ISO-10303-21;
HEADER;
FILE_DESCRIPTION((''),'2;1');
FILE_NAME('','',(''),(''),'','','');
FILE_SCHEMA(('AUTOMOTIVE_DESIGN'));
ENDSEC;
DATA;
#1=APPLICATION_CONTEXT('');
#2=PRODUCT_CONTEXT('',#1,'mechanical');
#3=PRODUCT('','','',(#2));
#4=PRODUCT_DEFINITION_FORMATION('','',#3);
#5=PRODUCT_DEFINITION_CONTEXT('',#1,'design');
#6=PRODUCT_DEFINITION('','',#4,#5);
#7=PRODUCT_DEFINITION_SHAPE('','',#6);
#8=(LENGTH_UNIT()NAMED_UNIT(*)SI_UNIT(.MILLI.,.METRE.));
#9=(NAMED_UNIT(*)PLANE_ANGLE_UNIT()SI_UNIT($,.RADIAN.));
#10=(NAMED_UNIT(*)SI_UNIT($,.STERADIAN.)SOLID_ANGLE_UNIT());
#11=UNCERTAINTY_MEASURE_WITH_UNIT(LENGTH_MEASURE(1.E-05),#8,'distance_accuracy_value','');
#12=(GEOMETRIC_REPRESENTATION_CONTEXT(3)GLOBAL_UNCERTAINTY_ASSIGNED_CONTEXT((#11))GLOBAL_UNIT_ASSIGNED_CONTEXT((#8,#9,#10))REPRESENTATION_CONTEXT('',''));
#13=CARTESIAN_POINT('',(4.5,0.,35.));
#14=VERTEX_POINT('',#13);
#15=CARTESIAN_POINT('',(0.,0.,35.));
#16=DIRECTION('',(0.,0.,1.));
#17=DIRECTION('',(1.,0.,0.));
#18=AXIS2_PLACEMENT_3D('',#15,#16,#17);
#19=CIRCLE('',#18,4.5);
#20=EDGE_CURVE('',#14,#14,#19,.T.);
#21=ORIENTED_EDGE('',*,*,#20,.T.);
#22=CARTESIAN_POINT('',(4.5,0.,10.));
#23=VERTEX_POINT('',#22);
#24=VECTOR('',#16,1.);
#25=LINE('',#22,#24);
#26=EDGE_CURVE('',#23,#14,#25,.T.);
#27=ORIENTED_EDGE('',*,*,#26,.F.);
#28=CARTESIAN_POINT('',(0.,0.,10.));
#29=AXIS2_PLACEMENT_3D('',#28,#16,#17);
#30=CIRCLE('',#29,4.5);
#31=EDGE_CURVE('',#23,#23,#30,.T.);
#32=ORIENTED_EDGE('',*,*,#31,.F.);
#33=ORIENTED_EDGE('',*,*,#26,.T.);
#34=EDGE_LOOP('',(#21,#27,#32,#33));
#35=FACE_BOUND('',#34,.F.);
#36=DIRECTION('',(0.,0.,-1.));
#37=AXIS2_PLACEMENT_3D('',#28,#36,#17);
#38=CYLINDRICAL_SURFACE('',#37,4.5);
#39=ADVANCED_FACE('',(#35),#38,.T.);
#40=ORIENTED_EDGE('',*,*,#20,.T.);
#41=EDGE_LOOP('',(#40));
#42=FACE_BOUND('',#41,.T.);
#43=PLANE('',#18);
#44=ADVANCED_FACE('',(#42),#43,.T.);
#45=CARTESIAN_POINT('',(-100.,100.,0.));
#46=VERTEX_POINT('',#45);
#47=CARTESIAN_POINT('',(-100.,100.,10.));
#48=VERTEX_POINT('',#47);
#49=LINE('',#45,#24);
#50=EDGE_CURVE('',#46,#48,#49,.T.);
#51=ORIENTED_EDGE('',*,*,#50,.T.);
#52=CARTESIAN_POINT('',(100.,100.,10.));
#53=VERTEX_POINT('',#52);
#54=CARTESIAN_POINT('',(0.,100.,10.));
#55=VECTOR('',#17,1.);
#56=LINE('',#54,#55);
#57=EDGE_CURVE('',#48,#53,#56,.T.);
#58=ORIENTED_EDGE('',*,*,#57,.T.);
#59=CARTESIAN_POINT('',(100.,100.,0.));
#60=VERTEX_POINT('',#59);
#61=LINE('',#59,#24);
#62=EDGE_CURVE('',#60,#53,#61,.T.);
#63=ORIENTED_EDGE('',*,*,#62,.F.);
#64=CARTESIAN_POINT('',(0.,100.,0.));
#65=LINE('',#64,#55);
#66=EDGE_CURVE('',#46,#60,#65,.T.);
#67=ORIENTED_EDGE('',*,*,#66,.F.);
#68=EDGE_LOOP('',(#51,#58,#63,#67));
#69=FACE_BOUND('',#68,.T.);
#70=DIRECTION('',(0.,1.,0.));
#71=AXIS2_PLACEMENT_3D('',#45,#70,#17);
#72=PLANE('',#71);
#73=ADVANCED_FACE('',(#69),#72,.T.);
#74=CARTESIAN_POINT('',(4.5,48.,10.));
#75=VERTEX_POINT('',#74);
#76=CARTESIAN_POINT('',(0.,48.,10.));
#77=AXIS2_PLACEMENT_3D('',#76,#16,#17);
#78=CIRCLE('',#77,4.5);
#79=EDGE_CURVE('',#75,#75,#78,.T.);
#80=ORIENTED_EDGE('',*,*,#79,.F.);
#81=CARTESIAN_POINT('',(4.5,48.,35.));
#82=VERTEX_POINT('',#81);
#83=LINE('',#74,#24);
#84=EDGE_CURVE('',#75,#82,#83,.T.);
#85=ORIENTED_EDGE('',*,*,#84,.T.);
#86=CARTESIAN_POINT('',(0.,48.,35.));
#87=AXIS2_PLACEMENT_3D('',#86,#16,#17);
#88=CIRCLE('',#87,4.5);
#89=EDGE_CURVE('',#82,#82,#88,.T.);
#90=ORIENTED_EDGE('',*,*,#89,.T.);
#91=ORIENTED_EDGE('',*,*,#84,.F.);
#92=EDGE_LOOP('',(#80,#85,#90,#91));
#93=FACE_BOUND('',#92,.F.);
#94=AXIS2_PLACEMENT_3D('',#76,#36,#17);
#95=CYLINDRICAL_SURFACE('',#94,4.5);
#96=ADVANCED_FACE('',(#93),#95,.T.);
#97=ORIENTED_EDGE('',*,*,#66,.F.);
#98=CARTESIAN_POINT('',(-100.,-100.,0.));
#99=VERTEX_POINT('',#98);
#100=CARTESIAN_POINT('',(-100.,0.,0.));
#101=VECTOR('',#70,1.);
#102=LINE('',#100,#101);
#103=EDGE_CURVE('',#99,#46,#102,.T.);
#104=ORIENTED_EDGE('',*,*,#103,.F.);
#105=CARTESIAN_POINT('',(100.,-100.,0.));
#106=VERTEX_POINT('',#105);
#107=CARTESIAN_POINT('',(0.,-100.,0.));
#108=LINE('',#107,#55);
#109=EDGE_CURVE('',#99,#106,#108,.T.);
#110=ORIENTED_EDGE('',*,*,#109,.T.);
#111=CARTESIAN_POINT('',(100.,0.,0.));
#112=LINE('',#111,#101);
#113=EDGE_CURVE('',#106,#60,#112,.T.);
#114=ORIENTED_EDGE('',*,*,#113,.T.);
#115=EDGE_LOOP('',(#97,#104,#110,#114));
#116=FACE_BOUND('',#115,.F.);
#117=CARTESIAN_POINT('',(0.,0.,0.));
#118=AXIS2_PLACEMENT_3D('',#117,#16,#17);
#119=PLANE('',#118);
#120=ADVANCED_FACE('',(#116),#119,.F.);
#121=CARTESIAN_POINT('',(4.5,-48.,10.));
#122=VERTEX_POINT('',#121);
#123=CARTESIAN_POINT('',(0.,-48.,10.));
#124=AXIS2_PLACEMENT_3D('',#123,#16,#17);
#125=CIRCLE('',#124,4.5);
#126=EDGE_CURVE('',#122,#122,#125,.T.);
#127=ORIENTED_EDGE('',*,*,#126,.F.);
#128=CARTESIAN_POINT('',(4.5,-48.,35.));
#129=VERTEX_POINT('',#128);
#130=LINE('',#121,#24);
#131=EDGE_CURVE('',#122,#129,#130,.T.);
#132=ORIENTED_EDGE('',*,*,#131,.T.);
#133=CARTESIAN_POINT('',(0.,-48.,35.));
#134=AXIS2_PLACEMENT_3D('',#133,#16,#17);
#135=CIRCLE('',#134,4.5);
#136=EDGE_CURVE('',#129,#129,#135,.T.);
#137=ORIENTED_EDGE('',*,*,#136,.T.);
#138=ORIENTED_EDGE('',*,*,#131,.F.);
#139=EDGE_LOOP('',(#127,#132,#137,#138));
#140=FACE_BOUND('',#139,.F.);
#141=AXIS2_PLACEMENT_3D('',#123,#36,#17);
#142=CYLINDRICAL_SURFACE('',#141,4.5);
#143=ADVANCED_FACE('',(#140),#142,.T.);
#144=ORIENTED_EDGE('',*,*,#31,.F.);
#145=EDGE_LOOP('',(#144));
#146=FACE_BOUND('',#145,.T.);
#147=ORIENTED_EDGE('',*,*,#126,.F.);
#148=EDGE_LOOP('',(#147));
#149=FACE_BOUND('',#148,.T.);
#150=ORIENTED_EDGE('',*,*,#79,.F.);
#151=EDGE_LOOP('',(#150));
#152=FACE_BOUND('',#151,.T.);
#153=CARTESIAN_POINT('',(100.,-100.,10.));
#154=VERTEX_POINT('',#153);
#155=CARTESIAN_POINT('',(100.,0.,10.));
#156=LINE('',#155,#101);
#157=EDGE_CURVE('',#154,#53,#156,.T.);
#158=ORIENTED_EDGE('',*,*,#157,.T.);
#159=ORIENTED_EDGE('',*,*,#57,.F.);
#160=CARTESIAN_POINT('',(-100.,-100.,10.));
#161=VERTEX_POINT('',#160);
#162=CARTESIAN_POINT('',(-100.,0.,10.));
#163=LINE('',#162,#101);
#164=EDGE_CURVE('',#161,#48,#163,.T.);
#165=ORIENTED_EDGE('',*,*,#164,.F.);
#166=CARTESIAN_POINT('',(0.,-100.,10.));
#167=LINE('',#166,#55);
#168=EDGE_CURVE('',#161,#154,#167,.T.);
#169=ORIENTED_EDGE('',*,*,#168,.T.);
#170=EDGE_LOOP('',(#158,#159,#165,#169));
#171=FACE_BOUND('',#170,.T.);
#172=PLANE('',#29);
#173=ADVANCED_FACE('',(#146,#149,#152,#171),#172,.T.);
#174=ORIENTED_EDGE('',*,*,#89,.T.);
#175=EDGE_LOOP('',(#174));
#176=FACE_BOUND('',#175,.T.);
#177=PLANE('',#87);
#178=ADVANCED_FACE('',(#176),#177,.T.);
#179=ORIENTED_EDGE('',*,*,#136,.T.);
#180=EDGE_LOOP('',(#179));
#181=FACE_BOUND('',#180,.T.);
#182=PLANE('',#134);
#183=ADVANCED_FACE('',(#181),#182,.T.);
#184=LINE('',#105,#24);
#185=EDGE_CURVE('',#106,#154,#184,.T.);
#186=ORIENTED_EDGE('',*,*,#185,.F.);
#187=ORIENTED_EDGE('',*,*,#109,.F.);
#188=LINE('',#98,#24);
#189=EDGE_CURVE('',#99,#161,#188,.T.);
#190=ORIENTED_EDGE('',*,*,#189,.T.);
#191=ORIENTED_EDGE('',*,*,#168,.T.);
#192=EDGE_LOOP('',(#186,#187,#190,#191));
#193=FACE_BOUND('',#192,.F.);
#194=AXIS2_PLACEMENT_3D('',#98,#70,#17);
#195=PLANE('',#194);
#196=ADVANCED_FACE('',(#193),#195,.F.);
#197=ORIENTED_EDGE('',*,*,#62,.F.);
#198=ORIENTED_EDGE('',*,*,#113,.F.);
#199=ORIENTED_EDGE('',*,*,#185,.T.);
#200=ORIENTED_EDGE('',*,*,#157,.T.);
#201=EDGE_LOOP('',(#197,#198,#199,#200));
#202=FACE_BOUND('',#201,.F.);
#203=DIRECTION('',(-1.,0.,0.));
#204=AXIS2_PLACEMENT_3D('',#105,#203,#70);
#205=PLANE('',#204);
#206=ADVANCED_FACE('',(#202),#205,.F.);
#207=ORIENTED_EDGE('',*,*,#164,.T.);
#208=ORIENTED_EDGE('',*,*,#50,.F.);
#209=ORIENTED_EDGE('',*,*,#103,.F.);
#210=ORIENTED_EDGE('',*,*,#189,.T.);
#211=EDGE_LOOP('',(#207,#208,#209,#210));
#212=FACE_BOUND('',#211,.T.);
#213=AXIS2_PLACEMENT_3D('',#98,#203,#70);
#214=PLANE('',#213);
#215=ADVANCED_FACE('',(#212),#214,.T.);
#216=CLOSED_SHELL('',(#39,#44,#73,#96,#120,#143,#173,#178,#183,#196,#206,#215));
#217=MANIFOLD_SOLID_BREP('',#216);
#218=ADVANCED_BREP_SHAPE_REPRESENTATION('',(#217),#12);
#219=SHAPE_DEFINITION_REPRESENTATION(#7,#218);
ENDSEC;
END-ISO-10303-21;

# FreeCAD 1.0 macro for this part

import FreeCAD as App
import Part
import Sketcher


def add_polygon(sketch, points):
    """Adds a closed chain of lines whose ends are joined by coincident constraints."""
    first, n = sketch.GeometryCount, len(points)
    for a, b in zip(points, points[1:] + points[:1]):
        sketch.addGeometry(Part.LineSegment(App.Vector(*a, 0), App.Vector(*b, 0)), False)
    for i in range(n):
        sketch.addConstraint(Sketcher.Constraint("Coincident", first + i, 2, first + (i + 1) % n, 1))

doc = App.newDocument("Part")
body = doc.addObject("PartDesign::Body", "Body")

sketch1 = doc.addObject("Sketcher::SketchObject", "Sketch")
body.addObject(sketch1)
sketch1.AttachmentSupport = (doc.XY_Plane, [""])
sketch1.MapMode = "FlatFace"
add_polygon(sketch1, [(-100, 100), (-100, -100), (100, -100), (100, 100)])
sketch1.addConstraint([
    Sketcher.Constraint("Vertical", 0),
    Sketcher.Constraint("Horizontal", 1),
    Sketcher.Constraint("Vertical", 2),
    Sketcher.Constraint("Horizontal", 3),
    Sketcher.Constraint("Symmetric", 0, 2, 2, 2, -1, 1),
    Sketcher.Constraint("Equal", 3, 0),
    Sketcher.Constraint("DistanceX", 1, 1, 1, 2, 200.0),
])
pad1 = doc.addObject("PartDesign::Pad", "Pad")
body.addObject(pad1)
pad1.Profile = sketch1
pad1.Length = 10

sketch2 = doc.addObject("Sketcher::SketchObject", "Sketch001")
body.addObject(sketch2)
sketch2.AttachmentSupport = (doc.XY_Plane, [""])
sketch2.MapMode = "FlatFace"
sketch2.AttachmentOffset = App.Placement(App.Vector(0, 0, 10), App.Rotation())
sketch2.addGeometry([
    Part.Circle(App.Vector(0, 48, 0), App.Vector(0, 0, 1), 4.5),
    Part.Circle(App.Vector(0, -48, 0), App.Vector(0, 0, 1), 4.5),
    Part.Circle(App.Vector(0, 0, 0), App.Vector(0, 0, 1), 4.5),
], False)
sketch2.addConstraint([
    Sketcher.Constraint("Coincident", 2, 3, -1, 1),
    Sketcher.Constraint("Equal", 0, 1),
    Sketcher.Constraint("Equal", 1, 2),
    Sketcher.Constraint("Symmetric", 0, 3, 1, 3, -1, 1),
    Sketcher.Constraint("PointOnObject", 0, 3, -2),
    Sketcher.Constraint("Diameter", 0, 9.0),
    Sketcher.Constraint("DistanceY", -1, 1, 0, 3, 48.0),
])
pad2 = doc.addObject("PartDesign::Pad", "Pad001")
body.addObject(pad2)
pad2.Profile = sketch2
pad2.Length = 25

doc.recompute()
